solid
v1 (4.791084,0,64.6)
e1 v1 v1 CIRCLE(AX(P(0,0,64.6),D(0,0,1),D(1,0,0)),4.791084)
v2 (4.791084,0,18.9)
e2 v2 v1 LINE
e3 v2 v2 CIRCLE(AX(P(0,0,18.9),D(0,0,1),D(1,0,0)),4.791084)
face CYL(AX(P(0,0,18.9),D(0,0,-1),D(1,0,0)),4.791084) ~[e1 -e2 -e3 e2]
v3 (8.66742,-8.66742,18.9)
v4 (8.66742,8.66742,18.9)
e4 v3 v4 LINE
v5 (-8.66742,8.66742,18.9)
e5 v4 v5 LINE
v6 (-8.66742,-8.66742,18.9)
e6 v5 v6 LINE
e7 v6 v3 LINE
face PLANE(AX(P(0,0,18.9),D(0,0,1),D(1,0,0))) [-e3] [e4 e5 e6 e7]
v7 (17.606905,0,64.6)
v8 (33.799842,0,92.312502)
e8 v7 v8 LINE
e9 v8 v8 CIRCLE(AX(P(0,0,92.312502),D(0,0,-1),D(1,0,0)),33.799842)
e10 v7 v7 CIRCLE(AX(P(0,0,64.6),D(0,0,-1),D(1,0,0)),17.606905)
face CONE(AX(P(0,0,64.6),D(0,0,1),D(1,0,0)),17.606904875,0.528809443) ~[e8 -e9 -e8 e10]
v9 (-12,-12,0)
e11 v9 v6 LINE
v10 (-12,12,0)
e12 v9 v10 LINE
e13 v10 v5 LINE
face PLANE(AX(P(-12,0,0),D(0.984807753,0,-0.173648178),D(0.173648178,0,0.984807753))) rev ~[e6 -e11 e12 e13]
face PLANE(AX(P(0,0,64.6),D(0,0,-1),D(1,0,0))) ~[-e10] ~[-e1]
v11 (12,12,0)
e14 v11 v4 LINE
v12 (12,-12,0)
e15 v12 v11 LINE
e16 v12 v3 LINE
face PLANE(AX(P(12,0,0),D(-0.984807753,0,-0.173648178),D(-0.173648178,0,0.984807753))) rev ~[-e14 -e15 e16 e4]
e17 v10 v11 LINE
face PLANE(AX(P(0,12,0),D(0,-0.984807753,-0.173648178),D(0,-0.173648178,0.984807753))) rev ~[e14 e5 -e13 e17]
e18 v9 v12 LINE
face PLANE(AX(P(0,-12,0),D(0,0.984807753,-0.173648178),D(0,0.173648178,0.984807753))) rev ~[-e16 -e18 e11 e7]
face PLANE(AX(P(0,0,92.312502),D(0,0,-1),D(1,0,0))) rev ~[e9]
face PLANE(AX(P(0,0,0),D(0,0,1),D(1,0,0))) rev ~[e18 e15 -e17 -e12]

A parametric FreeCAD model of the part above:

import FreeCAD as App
import Part
import Sketcher
Q = App.Units.Quantity


def add_polygon(sketch, points):
    """Adds a closed chain of lines whose ends are joined by coincident constraints."""
    first, n = sketch.GeometryCount, len(points)
    for a, b in zip(points, points[1:] + points[:1]):
        sketch.addGeometry(Part.LineSegment(App.Vector(*a, 0), App.Vector(*b, 0)), False)
    for i in range(n):
        sketch.addConstraint(Sketcher.Constraint("Coincident", first + i, 2, first + (i + 1) % n, 1))

doc = App.newDocument("Part")
params = doc.addObject("Spreadsheet::Sheet", "Params")
for row, (alias, value) in enumerate([
    ("sketch1_width", "24 mm"),
    ("pad1_length", "18.9 mm"),
    ("pad1_taper", "-10 deg"),
    ("pad2_length", "45.7 mm"),
    ("revolution_angle", "360 deg"),
], start=1):
    params.set(f"A{row}", alias)
    params.set(f"B{row}", "=" + value)
    params.setAlias(f"B{row}", alias)

body = doc.addObject("PartDesign::Body", "Body")

# Sketch on XY plane
sketch1 = body.newObject("Sketcher::SketchObject", "Sketch")
sketch1.AttachmentSupport = (doc.getObject("XY_Plane"), [""])
sketch1.MapMode = "FlatFace"
add_polygon(sketch1, [(-12, 12), (-12, -12), (12, -12), (12, 12)])  # lines 0-3
sketch1.addConstraint(Sketcher.Constraint("Vertical", 0))
sketch1.addConstraint(Sketcher.Constraint("Horizontal", 1))
sketch1.addConstraint(Sketcher.Constraint("Vertical", 2))
sketch1.addConstraint(Sketcher.Constraint("Horizontal", 3))
sketch1.addConstraint(Sketcher.Constraint("Symmetric", 0, 2, 2, 2, -1, 1))
sketch1.addConstraint(Sketcher.Constraint("Equal", 3, 0))
sketch1.addConstraint(Sketcher.Constraint("DistanceX", 1, 1, 1, 2, Q("24 mm")))
sketch1.setExpression("Constraints[10]", "Params.sketch1_width")
pad1 = body.newObject("PartDesign::Pad", "Pad")
pad1.Profile = sketch1
pad1.setExpression("Length", "Params.pad1_length")
pad1.setExpression("TaperAngle", "Params.pad1_taper")

# Sketch on XY plane
sketch2 = body.newObject("Sketcher::SketchObject", "Sketch001")
sketch2.AttachmentSupport = (doc.getObject("XY_Plane"), [""])
sketch2.MapMode = "FlatFace"
sketch2.AttachmentOffset = App.Placement(App.Vector(0, 0, 18.9), App.Rotation())
sketch2.addGeometry(Part.Circle(App.Vector(0, 0, 0), App.Vector(0, 0, 1), 4.8), False)
sketch2.addConstraint(Sketcher.Constraint("Coincident", 0, 3, -1, 1))
sketch2.addConstraint(Sketcher.Constraint("Diameter", 0, Q("9.582168 mm")))
pad2 = body.newObject("PartDesign::Pad", "Pad001")
pad2.Profile = sketch2
pad2.setExpression("Length", "Params.pad2_length")

# Sketch on XZ plane
sketch3 = body.newObject("Sketcher::SketchObject", "Sketch002")
sketch3.AttachmentSupport = (doc.getObject("XZ_Plane"), [""])
sketch3.MapMode = "FlatFace"
add_polygon(sketch3, [(0, 92), (0, 65), (18, 65), (34, 92)])  # lines 0-3
sketch3.addConstraint(Sketcher.Constraint("Vertical", 0))
sketch3.addConstraint(Sketcher.Constraint("Horizontal", 1))
sketch3.addConstraint(Sketcher.Constraint("Horizontal", 3))
sketch3.addConstraint(Sketcher.Constraint("PointOnObject", 0, 2, -2))
sketch3.addConstraint(Sketcher.Constraint("DistanceY", -1, 1, 0, 2, Q("64.6 mm")))
sketch3.addConstraint(Sketcher.Constraint("DistanceY", 0, 2, 0, 1, Q("27.712502 mm")))
sketch3.addConstraint(Sketcher.Constraint("DistanceX", 3, 2, 3, 1, Q("33.799842 mm")))
sketch3.addConstraint(Sketcher.Constraint("DistanceX", 1, 1, 1, 2, Q("17.606905 mm")))
revolution = body.newObject("PartDesign::Revolution", "Revolution")
revolution.Profile = sketch3
revolution.ReferenceAxis = (sketch3, ["V_Axis"])
revolution.setExpression("Angle", "Params.revolution_angle")

doc.recompute()
